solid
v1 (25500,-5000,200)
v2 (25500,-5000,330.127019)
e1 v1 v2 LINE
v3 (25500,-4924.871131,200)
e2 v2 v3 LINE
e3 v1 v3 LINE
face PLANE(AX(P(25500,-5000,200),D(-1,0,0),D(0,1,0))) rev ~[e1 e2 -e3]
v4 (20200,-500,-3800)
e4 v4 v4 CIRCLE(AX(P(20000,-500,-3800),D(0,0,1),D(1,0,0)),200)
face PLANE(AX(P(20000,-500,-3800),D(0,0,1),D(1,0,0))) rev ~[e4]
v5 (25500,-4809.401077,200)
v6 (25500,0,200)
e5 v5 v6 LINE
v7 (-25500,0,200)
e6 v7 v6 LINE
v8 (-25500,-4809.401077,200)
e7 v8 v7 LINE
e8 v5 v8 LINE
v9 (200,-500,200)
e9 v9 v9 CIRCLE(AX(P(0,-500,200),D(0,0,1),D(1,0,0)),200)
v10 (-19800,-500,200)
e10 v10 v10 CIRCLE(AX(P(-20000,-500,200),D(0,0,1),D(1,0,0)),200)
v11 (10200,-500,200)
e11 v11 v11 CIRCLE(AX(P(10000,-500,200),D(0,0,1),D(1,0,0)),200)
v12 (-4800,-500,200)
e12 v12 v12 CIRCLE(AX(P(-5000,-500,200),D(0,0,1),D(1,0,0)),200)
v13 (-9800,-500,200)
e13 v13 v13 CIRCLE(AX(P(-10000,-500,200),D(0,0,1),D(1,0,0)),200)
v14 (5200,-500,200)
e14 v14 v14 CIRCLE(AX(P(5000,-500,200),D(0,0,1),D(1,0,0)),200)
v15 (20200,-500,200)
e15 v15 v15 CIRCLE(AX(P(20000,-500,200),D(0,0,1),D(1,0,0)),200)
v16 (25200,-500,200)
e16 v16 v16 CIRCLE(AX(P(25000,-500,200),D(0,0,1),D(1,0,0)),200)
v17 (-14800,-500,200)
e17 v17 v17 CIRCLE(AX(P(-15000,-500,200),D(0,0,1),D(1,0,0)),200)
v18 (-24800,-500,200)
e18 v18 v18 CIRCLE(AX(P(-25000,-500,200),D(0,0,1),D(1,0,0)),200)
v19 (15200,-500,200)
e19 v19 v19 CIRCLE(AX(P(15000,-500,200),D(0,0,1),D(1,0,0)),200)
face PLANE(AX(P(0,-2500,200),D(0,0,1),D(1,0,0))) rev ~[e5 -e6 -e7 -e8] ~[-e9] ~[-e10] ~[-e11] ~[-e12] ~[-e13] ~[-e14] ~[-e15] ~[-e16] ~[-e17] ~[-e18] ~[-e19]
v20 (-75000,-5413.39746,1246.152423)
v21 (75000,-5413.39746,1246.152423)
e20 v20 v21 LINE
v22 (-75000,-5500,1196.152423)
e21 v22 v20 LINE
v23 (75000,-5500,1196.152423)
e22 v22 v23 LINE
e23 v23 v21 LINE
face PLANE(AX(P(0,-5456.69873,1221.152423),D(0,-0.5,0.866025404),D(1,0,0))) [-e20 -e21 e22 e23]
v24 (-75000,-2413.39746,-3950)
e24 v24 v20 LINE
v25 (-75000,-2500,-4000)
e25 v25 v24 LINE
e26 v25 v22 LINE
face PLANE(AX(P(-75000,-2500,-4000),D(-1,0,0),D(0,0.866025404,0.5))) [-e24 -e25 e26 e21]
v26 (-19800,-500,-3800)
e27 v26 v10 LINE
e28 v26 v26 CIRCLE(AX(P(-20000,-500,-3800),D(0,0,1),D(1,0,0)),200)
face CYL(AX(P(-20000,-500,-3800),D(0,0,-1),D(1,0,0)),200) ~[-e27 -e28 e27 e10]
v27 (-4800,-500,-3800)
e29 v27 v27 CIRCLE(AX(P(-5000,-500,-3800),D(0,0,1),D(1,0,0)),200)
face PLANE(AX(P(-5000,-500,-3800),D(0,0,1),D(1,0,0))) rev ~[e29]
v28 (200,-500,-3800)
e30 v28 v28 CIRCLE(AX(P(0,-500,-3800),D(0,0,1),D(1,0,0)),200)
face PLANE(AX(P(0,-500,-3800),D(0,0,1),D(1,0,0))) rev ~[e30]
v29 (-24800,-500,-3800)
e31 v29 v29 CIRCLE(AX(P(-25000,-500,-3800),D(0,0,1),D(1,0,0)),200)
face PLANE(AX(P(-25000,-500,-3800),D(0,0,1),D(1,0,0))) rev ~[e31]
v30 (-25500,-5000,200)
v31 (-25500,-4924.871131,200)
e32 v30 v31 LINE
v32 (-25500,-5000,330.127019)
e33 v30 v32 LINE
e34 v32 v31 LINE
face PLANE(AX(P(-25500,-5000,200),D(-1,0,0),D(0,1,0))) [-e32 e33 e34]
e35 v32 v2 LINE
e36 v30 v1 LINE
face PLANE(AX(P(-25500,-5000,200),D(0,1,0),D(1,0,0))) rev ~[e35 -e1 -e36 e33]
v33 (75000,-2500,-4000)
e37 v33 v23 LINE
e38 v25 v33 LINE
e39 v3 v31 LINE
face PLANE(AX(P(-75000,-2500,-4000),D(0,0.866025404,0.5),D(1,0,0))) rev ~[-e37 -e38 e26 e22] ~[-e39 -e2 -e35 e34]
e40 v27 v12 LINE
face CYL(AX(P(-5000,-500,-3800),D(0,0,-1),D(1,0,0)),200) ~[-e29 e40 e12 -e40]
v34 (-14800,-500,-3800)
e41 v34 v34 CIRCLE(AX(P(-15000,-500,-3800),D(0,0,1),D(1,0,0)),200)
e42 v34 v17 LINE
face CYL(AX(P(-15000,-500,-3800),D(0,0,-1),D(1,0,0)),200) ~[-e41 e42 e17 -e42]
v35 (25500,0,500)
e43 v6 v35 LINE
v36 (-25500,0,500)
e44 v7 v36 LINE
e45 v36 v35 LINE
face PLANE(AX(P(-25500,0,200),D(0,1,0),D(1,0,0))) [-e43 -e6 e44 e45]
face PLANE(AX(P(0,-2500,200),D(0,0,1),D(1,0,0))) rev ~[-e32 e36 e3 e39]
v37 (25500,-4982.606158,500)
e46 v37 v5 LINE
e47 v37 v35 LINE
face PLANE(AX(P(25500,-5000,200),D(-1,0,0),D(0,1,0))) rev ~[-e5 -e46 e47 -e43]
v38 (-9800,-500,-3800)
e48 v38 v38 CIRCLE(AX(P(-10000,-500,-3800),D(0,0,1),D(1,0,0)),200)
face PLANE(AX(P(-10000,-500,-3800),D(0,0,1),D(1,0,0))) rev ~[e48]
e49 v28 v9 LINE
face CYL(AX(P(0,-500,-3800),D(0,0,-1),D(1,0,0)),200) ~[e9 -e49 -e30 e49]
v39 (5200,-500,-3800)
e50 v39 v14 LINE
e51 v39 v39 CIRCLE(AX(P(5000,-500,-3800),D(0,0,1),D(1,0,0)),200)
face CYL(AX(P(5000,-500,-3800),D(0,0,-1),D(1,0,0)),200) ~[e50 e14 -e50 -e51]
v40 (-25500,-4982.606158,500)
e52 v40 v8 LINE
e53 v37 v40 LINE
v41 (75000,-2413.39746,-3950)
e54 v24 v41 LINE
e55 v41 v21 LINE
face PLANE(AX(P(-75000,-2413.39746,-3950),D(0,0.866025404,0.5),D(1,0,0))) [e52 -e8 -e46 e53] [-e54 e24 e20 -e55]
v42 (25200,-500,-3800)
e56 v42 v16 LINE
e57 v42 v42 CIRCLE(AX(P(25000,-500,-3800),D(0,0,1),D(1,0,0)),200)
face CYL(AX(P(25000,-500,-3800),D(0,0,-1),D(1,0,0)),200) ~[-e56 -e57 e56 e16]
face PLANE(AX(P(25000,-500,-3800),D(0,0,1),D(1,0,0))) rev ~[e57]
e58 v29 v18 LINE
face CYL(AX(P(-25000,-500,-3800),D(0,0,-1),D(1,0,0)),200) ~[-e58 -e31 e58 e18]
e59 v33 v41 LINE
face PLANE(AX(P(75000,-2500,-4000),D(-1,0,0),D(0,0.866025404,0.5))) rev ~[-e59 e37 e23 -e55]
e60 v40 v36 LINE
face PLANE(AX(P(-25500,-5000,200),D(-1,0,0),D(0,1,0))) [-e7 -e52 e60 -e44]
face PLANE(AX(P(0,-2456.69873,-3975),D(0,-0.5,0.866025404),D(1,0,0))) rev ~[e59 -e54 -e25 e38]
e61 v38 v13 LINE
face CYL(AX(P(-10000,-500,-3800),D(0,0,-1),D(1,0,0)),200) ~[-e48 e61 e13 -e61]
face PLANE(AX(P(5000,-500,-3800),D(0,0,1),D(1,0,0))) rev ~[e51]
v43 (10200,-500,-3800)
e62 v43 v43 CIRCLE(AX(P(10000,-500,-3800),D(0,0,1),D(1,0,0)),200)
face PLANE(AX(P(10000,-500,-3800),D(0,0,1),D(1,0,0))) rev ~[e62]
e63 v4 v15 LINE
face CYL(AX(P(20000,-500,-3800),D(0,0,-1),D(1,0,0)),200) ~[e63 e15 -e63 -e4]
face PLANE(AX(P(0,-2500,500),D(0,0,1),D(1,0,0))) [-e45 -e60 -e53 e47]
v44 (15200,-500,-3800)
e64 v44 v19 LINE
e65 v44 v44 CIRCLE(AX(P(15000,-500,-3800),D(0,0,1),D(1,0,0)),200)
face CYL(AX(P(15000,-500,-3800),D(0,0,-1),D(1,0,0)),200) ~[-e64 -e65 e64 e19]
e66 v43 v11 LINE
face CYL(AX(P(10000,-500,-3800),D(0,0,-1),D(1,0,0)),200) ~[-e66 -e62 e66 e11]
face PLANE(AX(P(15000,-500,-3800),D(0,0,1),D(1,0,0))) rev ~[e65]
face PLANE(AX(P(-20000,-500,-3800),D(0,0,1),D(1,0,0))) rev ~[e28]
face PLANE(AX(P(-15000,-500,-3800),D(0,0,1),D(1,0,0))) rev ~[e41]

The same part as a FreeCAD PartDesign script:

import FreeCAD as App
import Part
import Sketcher

doc = App.newDocument("Part")
body = doc.addObject("PartDesign::Body", "Body")

sketch1 = body.newObject("Sketcher::SketchObject", "Sketch")
sketch1.AttachmentSupport = (doc.getObject("XY_Plane"), [""])
sketch1.MapMode = "FlatFace"
sketch1.AttachmentOffset = App.Placement(App.Vector(0, 0, -3800), App.Rotation())
sketch1.addGeometry(Part.Circle(App.Vector(-25000, -500, 0), App.Vector(0, 0, 1), 200), False)
sketch1.addConstraint([
    Sketcher.Constraint("Diameter", 0, 400.0),
    Sketcher.Constraint("DistanceX", 0, 3, -1, 1, 25000.0),
    Sketcher.Constraint("DistanceY", 0, 3, -1, 1, 500.0),
])
pad1 = body.newObject("PartDesign::Pad", "Pad")
pad1.Profile = sketch1
pad1.Length = 4000
body2 = doc.addObject("PartDesign::Body", "Body001")

sketch2 = body2.newObject("Sketcher::SketchObject", "Sketch001")
sketch2.AttachmentSupport = (doc.getObject("XY_Plane001"), [""])
sketch2.MapMode = "FlatFace"
sketch2.AttachmentOffset = App.Placement(App.Vector(0, 0, -3800), App.Rotation())
sketch2.addGeometry(Part.Circle(App.Vector(0, -500, 0), App.Vector(0, 0, 1), 200), False)
sketch2.addConstraint([
    Sketcher.Constraint("PointOnObject", 0, 3, -2),
    Sketcher.Constraint("Diameter", 0, 400.0),
    Sketcher.Constraint("DistanceY", 0, 3, -1, 1, 500.0),
])
pad2 = body2.newObject("PartDesign::Pad", "Pad001")
pad2.Profile = sketch2
pad2.Length = 4000
body3 = doc.addObject("PartDesign::Body", "Body002")

sketch3 = body3.newObject("Sketcher::SketchObject", "Sketch002")
sketch3.AttachmentSupport = (doc.getObject("XY_Plane002"), [""])
sketch3.MapMode = "FlatFace"
sketch3.AttachmentOffset = App.Placement(App.Vector(0, 0, -3800), App.Rotation())
sketch3.addGeometry(Part.Circle(App.Vector(-15000, -500, 0), App.Vector(0, 0, 1), 200), False)
sketch3.addConstraint([
    Sketcher.Constraint("Diameter", 0, 400.0),
    Sketcher.Constraint("DistanceX", 0, 3, -1, 1, 15000.0),
    Sketcher.Constraint("DistanceY", 0, 3, -1, 1, 500.0),
])
pad3 = body3.newObject("PartDesign::Pad", "Pad002")
pad3.Profile = sketch3
pad3.Length = 4000
body4 = doc.addObject("PartDesign::Body", "Body003")

sketch4 = body4.newObject("Sketcher::SketchObject", "Sketch003")
sketch4.AttachmentSupport = (doc.getObject("XY_Plane003"), [""])
sketch4.MapMode = "FlatFace"
sketch4.AttachmentOffset = App.Placement(App.Vector(0, 0, -3800), App.Rotation())
sketch4.addGeometry(Part.Circle(App.Vector(-10000, -500, 0), App.Vector(0, 0, 1), 200), False)
sketch4.addConstraint([
    Sketcher.Constraint("Diameter", 0, 400.0),
    Sketcher.Constraint("DistanceX", 0, 3, -1, 1, 10000.0),
    Sketcher.Constraint("DistanceY", 0, 3, -1, 1, 500.0),
])
pad4 = body4.newObject("PartDesign::Pad", "Pad003")
pad4.Profile = sketch4
pad4.Length = 4000
body5 = doc.addObject("PartDesign::Body", "Body004")

sketch5 = body5.newObject("Sketcher::SketchObject", "Sketch004")
sketch5.AttachmentSupport = (doc.getObject("XY_Plane004"), [""])
sketch5.MapMode = "FlatFace"
sketch5.AttachmentOffset = App.Placement(App.Vector(0, 0, -3800), App.Rotation())
sketch5.addGeometry(Part.Circle(App.Vector(25000, -500, 0), App.Vector(0, 0, 1), 200), False)
sketch5.addConstraint([
    Sketcher.Constraint("Diameter", 0, 400.0),
    Sketcher.Constraint("DistanceX", -1, 1, 0, 3, 25000.0),
    Sketcher.Constraint("DistanceY", 0, 3, -1, 1, 500.0),
])
pad5 = body5.newObject("PartDesign::Pad", "Pad004")
pad5.Profile = sketch5
pad5.Length = 4000
body6 = doc.addObject("PartDesign::Body", "Body005")

sketch6 = body6.newObject("Sketcher::SketchObject", "Sketch005")
sketch6.AttachmentSupport = (doc.getObject("XY_Plane005"), [""])
sketch6.MapMode = "FlatFace"
sketch6.AttachmentOffset = App.Placement(App.Vector(0, 0, -3800), App.Rotation())
sketch6.addGeometry(Part.Circle(App.Vector(15000, -500, 0), App.Vector(0, 0, 1), 200), False)
sketch6.addConstraint([
    Sketcher.Constraint("Diameter", 0, 400.0),
    Sketcher.Constraint("DistanceX", -1, 1, 0, 3, 15000.0),
    Sketcher.Constraint("DistanceY", 0, 3, -1, 1, 500.0),
])
pad6 = body6.newObject("PartDesign::Pad", "Pad005")
pad6.Profile = sketch6
pad6.Length = 4000
body7 = doc.addObject("PartDesign::Body", "Body006")

sketch7 = body7.newObject("Sketcher::SketchObject", "Sketch006")
sketch7.AttachmentSupport = (doc.getObject("XY_Plane006"), [""])
sketch7.MapMode = "FlatFace"
sketch7.AttachmentOffset = App.Placement(App.Vector(0, 0, -3800), App.Rotation())
sketch7.addGeometry(Part.Circle(App.Vector(20000, -500, 0), App.Vector(0, 0, 1), 200), False)
sketch7.addConstraint([
    Sketcher.Constraint("Diameter", 0, 400.0),
    Sketcher.Constraint("DistanceX", -1, 1, 0, 3, 20000.0),
    Sketcher.Constraint("DistanceY", 0, 3, -1, 1, 500.0),
])
pad7 = body7.newObject("PartDesign::Pad", "Pad006")
pad7.Profile = sketch7
pad7.Length = 4000
body8 = doc.addObject("PartDesign::Body", "Body007")

sketch8 = body8.newObject("Sketcher::SketchObject", "Sketch007")
sketch8.AttachmentSupport = (doc.getObject("XY_Plane007"), [""])
sketch8.MapMode = "FlatFace"
sketch8.AttachmentOffset = App.Placement(App.Vector(0, 0, -3800), App.Rotation())
sketch8.addGeometry(Part.Circle(App.Vector(10000, -500, 0), App.Vector(0, 0, 1), 200), False)
sketch8.addConstraint([
    Sketcher.Constraint("Diameter", 0, 400.0),
    Sketcher.Constraint("DistanceX", -1, 1, 0, 3, 10000.0),
    Sketcher.Constraint("DistanceY", 0, 3, -1, 1, 500.0),
])
pad8 = body8.newObject("PartDesign::Pad", "Pad007")
pad8.Profile = sketch8
pad8.Length = 4000
body9 = doc.addObject("PartDesign::Body", "Body008")

sketch9 = body9.newObject("Sketcher::SketchObject", "Sketch008")
sketch9.AttachmentSupport = (doc.getObject("XY_Plane008"), [""])
sketch9.MapMode = "FlatFace"
sketch9.AttachmentOffset = App.Placement(App.Vector(0, 0, -3800), App.Rotation())
sketch9.addGeometry(Part.Circle(App.Vector(-20000, -500, 0), App.Vector(0, 0, 1), 200), False)
sketch9.addConstraint([
    Sketcher.Constraint("Diameter", 0, 400.0),
    Sketcher.Constraint("DistanceX", 0, 3, -1, 1, 20000.0),
    Sketcher.Constraint("DistanceY", 0, 3, -1, 1, 500.0),
])
pad9 = body9.newObject("PartDesign::Pad", "Pad008")
pad9.Profile = sketch9
pad9.Length = 4000
body10 = doc.addObject("PartDesign::Body", "Body009")

sketch10 = body10.newObject("Sketcher::SketchObject", "Sketch009")
sketch10.AttachmentSupport = (doc.getObject("XY_Plane009"), [""])
sketch10.MapMode = "FlatFace"
sketch10.addGeometry([
    Part.LineSegment(App.Vector(0, 100, 0), App.Vector(0, 0, 0)),
    Part.LineSegment(App.Vector(0, 0, 0), App.Vector(150000, 0, 0)),
    Part.LineSegment(App.Vector(150000, 0, 0), App.Vector(150000, 100, 0)),
    Part.LineSegment(App.Vector(150000, 100, 0), App.Vector(0, 100, 0)),
], False)
sketch10.addConstraint([
    Sketcher.Constraint("Coincident", 0, 2, 1, 1),
    Sketcher.Constraint("Coincident", 1, 2, 2, 1),
    Sketcher.Constraint("Coincident", 2, 2, 3, 1),
    Sketcher.Constraint("Coincident", 3, 2, 0, 1),
    Sketcher.Constraint("Vertical", 0),
    Sketcher.Constraint("Horizontal", 1),
    Sketcher.Constraint("Vertical", 2),
    Sketcher.Constraint("Horizontal", 3),
    Sketcher.Constraint("Coincident", 0, 2, -1, 1),
    Sketcher.Constraint("DistanceX", 1, 1, 1, 2, 150000.0),
    Sketcher.Constraint("DistanceY", 0, 2, 0, 1, 100.0),
])
pad10 = body10.newObject("PartDesign::Pad", "Pad009")
pad10.Profile = sketch10
pad10.Length = 6000
body11 = doc.addObject("PartDesign::Body", "Body010")
doc.recompute()

body10.Placement = App.Placement(App.Vector(-75000, -2500, -4000), App.Rotation(App.Vector(1, 0, 0), 30))
boolean = body11.newObject("PartDesign::Boolean", "Boolean")
boolean.Type = "Fuse"
boolean.addObjects([body10])
body12 = doc.addObject("PartDesign::Body", "Body011")

sketch11 = body12.newObject("Sketcher::SketchObject", "Sketch010")
sketch11.AttachmentSupport = (doc.getObject("XY_Plane011"), [""])
sketch11.MapMode = "FlatFace"
sketch11.AttachmentOffset = App.Placement(App.Vector(0, 0, -3800), App.Rotation())
sketch11.addGeometry(Part.Circle(App.Vector(5000, -500, 0), App.Vector(0, 0, 1), 200), False)
sketch11.addConstraint([
    Sketcher.Constraint("Diameter", 0, 400.0),
    Sketcher.Constraint("DistanceX", -1, 1, 0, 3, 5000.0),
    Sketcher.Constraint("DistanceY", 0, 3, -1, 1, 500.0),
])
pad11 = body12.newObject("PartDesign::Pad", "Pad010")
pad11.Profile = sketch11
pad11.Length = 4000
body13 = doc.addObject("PartDesign::Body", "Body012")

sketch12 = body13.newObject("Sketcher::SketchObject", "Sketch011")
sketch12.AttachmentSupport = (doc.getObject("XY_Plane012"), [""])
sketch12.MapMode = "FlatFace"
sketch12.AttachmentOffset = App.Placement(App.Vector(0, 0, -3800), App.Rotation())
sketch12.addGeometry(Part.Circle(App.Vector(-5000, -500, 0), App.Vector(0, 0, 1), 200), False)
sketch12.addConstraint([
    Sketcher.Constraint("Diameter", 0, 400.0),
    Sketcher.Constraint("DistanceX", 0, 3, -1, 1, 5000.0),
    Sketcher.Constraint("DistanceY", 0, 3, -1, 1, 500.0),
])
pad12 = body13.newObject("PartDesign::Pad", "Pad011")
pad12.Profile = sketch12
pad12.Length = 4000
body14 = doc.addObject("PartDesign::Body", "Body013")

sketch13 = body14.newObject("Sketcher::SketchObject", "Sketch012")
sketch13.AttachmentSupport = (doc.getObject("XY_Plane013"), [""])
sketch13.MapMode = "FlatFace"
sketch13.AttachmentOffset = App.Placement(App.Vector(0, 0, 200), App.Rotation())
sketch13.addGeometry([
    Part.LineSegment(App.Vector(-25500, 0, 0), App.Vector(-25500, -5000, 0)),
    Part.LineSegment(App.Vector(-25500, -5000, 0), App.Vector(25500, -5000, 0)),
    Part.LineSegment(App.Vector(25500, -5000, 0), App.Vector(25500, 0, 0)),
    Part.LineSegment(App.Vector(25500, 0, 0), App.Vector(-25500, 0, 0)),
], False)
sketch13.addConstraint([
    Sketcher.Constraint("Coincident", 0, 2, 1, 1),
    Sketcher.Constraint("Coincident", 1, 2, 2, 1),
    Sketcher.Constraint("Coincident", 2, 2, 3, 1),
    Sketcher.Constraint("Coincident", 3, 2, 0, 1),
    Sketcher.Constraint("Vertical", 0),
    Sketcher.Constraint("Horizontal", 1),
    Sketcher.Constraint("Vertical", 2),
    Sketcher.Constraint("Horizontal", 3),
    Sketcher.Constraint("Symmetric", 2, 2, 3, 2, -1, 1),
    Sketcher.Constraint("DistanceX", 1, 1, 1, 2, 51000.0),
    Sketcher.Constraint("DistanceY", 0, 2, 0, 1, 5000.0),
])
pad13 = body14.newObject("PartDesign::Pad", "Pad012")
pad13.Profile = sketch13
pad13.Length = 300
doc.recompute()

boolean2 = body14.newObject("PartDesign::Boolean", "Boolean001")
boolean2.Type = "Fuse"
boolean2.addObjects([body])
doc.recompute()

boolean3 = body14.newObject("PartDesign::Boolean", "Boolean002")
boolean3.Type = "Fuse"
boolean3.addObjects([body2])
doc.recompute()

boolean4 = body14.newObject("PartDesign::Boolean", "Boolean003")
boolean4.Type = "Fuse"
boolean4.addObjects([body3])
doc.recompute()

boolean5 = body14.newObject("PartDesign::Boolean", "Boolean004")
boolean5.Type = "Fuse"
boolean5.addObjects([body4])
doc.recompute()

boolean6 = body14.newObject("PartDesign::Boolean", "Boolean005")
boolean6.Type = "Fuse"
boolean6.addObjects([body5])
doc.recompute()

boolean7 = body14.newObject("PartDesign::Boolean", "Boolean006")
boolean7.Type = "Fuse"
boolean7.addObjects([body6])
doc.recompute()

boolean8 = body14.newObject("PartDesign::Boolean", "Boolean007")
boolean8.Type = "Fuse"
boolean8.addObjects([body7])
doc.recompute()

boolean9 = body14.newObject("PartDesign::Boolean", "Boolean008")
boolean9.Type = "Fuse"
boolean9.addObjects([body8])
doc.recompute()

boolean10 = body14.newObject("PartDesign::Boolean", "Boolean009")
boolean10.Type = "Fuse"
boolean10.addObjects([body9])
doc.recompute()

boolean11 = body14.newObject("PartDesign::Boolean", "Boolean010")
boolean11.Type = "Fuse"
boolean11.addObjects([body11])
doc.recompute()

boolean12 = body14.newObject("PartDesign::Boolean", "Boolean011")
boolean12.Type = "Fuse"
boolean12.addObjects([body12])
doc.recompute()

boolean13 = body14.newObject("PartDesign::Boolean", "Boolean012")
boolean13.Type = "Fuse"
boolean13.addObjects([body13])

doc.recompute()
